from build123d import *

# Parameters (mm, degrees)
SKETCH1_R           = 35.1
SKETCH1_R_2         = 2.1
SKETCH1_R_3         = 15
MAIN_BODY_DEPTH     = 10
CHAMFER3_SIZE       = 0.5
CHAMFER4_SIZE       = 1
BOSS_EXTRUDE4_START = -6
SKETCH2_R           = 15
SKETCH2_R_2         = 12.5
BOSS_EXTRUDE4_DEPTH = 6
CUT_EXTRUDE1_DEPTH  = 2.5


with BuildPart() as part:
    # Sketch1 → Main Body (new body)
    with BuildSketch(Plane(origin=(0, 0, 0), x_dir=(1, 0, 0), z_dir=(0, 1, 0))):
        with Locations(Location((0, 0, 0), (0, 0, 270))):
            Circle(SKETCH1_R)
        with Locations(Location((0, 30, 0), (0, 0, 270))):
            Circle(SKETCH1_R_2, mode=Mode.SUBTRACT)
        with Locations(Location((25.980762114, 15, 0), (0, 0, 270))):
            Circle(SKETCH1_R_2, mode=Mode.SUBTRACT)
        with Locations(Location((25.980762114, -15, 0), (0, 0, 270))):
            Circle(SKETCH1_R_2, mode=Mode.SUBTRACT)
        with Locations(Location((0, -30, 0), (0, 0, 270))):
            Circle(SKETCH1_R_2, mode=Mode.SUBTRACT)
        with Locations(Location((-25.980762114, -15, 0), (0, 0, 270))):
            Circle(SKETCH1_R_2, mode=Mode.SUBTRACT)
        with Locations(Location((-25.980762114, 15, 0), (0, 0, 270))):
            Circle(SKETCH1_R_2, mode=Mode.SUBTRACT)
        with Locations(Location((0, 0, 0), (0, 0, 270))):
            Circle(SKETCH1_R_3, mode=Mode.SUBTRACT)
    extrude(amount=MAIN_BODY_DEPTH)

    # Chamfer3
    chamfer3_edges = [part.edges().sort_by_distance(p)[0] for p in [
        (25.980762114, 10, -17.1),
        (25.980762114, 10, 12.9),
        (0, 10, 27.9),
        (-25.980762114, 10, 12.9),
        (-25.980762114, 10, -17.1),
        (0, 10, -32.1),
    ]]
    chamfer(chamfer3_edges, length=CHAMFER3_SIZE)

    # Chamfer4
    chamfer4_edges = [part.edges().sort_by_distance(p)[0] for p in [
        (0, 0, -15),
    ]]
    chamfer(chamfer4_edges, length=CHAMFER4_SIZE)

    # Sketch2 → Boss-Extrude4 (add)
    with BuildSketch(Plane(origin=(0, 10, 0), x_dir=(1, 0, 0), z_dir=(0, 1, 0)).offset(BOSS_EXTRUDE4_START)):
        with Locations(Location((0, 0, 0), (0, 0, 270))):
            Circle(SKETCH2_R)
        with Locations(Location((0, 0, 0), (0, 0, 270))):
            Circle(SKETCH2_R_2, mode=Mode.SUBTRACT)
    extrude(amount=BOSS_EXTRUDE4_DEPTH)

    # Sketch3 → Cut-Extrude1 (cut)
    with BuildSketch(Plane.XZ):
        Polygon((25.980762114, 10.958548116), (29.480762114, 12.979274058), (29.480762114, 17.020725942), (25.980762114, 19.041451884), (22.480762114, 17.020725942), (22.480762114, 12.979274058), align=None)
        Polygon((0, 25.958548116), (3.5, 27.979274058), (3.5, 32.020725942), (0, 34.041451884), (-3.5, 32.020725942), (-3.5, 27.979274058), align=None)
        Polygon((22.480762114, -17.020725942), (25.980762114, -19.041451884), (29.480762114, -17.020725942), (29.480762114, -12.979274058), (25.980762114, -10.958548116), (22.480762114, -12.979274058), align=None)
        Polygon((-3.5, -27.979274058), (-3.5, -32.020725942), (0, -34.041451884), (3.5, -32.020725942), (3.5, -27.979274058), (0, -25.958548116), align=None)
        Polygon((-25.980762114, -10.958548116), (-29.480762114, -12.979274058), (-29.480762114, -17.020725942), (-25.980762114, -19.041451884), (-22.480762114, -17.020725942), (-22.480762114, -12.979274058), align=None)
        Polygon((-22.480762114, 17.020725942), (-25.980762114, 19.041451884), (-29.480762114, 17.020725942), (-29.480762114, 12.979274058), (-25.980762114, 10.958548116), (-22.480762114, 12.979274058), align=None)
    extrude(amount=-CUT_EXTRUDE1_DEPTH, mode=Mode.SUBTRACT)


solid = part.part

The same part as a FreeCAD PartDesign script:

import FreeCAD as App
import Part
import Sketcher
from FreeCAD import Vector
Q = App.Units.Quantity


def edges_at(feature, points):
    """Names of the edges that pass closest to the given points."""
    edges = feature.Shape.Edges
    near = lambda p: min(range(len(edges)), key=lambda i: edges[i].distToShape(Part.Vertex(*p))[0])
    return sorted({f"Edge{near(p) + 1}" for p in points})

doc = App.newDocument("Part")
body = doc.addObject("PartDesign::Body", "Body")

# Sketch on XZ plane
sketch1 = body.newObject("Sketcher::SketchObject", "Sketch")
sketch1.AttachmentSupport = (doc.getObject("XZ_Plane"), [""])
sketch1.MapMode = "FlatFace"
sketch1.addGeometry([
    Part.Circle(Vector(0, 0, 0), Vector(0, 0, 1), 35.1),  # 0
    Part.Circle(Vector(-25.980762, -15, 0), Vector(0, 0, 1), 2.1),  # 1
    Part.Circle(Vector(0, -30, 0), Vector(0, 0, 1), 2.1),  # 2
    Part.Circle(Vector(-25.980762, 15, 0), Vector(0, 0, 1), 2.1),  # 3
    Part.Circle(Vector(25.980762, -15, 0), Vector(0, 0, 1), 2.1),  # 4
    Part.Circle(Vector(0, 0, 0), Vector(0, 0, 1), 15),  # 5
    Part.Circle(Vector(0, 30, 0), Vector(0, 0, 1), 2.1),  # 6
    Part.Circle(Vector(25.980762, 15, 0), Vector(0, 0, 1), 2.1),  # 7
], False)
sketch1.addConstraint([
    Sketcher.Constraint("Coincident", 0, 3, -1, 1),
    Sketcher.Constraint("Coincident", 5, 3, -1, 1),
    Sketcher.Constraint("Equal", 1, 2),
    Sketcher.Constraint("Equal", 2, 3),
    Sketcher.Constraint("Equal", 3, 4),
    Sketcher.Constraint("Equal", 4, 6),
    Sketcher.Constraint("Equal", 6, 7),
    Sketcher.Constraint("Symmetric", 3, 3, 4, 3, -1, 1),
    Sketcher.Constraint("Symmetric", 2, 3, 6, 3, -1, 1),
    Sketcher.Constraint("Symmetric", 1, 3, 7, 3, -1, 1),
    Sketcher.Constraint("Symmetric", 1, 3, 4, 3, -2),
    Sketcher.Constraint("PointOnObject", 2, 3, -2),
    Sketcher.Constraint("Diameter", 5, 30.0),
    Sketcher.Constraint("Diameter", 0, 70.2),
    Sketcher.Constraint("Diameter", 1, 4.2),
    Sketcher.Constraint("DistanceY", 1, 3, -1, 1, 15.0),
    Sketcher.Constraint("DistanceY", 2, 3, -1, 1, 30.0),
    Sketcher.Constraint("DistanceX", 1, 3, -1, 1, 25.980762),
])
pad1 = body.newObject("PartDesign::Pad", "Pad")
pad1.Profile = sketch1
pad1.Length = 10
pad1.Reversed = True
doc.recompute()

chamfer = body.newObject("PartDesign::Chamfer", "Chamfer")
chamfer.Base = (pad1, edges_at(pad1, [
    (25.981, 10, -17.1),
    (25.981, 10, 12.9),
    (0, 10, 27.9),
    (-25.981, 10, 12.9),
    (-25.981, 10, -17.1),
    (0, 10, -32.1),
]))
chamfer.Size = 0.5
doc.recompute()

chamfer2 = body.newObject("PartDesign::Chamfer", "Chamfer001")
chamfer2.Base = (chamfer, edges_at(chamfer, [(0, 0, -15)]))
chamfer2.Size = 1

# Sketch on XZ plane
sketch2 = body.newObject("Sketcher::SketchObject", "Sketch001")
sketch2.AttachmentSupport = (doc.getObject("XZ_Plane"), [""])
sketch2.MapMode = "FlatFace"
sketch2.AttachmentOffset = App.Placement(Vector(0, 0, -4), App.Rotation())
sketch2.addGeometry([
    Part.Circle(Vector(0, 0, 0), Vector(0, 0, 1), 15),
    Part.Circle(Vector(0, 0, 0), Vector(0, 0, 1), 12.5),
], False)
sketch2.addConstraint([
    Sketcher.Constraint("Coincident", 0, 3, -1, 1),
    Sketcher.Constraint("Coincident", 1, 3, -1, 1),
    Sketcher.Constraint("Diameter", 0, 30.0),
    Sketcher.Constraint("Diameter", 1, 25.0),
])
pad2 = body.newObject("PartDesign::Pad", "Pad001")
pad2.Profile = sketch2
pad2.Length = 6
pad2.Reversed = True

# Sketch on XZ plane
sketch3 = body.newObject("Sketcher::SketchObject", "Sketch002")
sketch3.AttachmentSupport = (doc.getObject("XZ_Plane"), [""])
sketch3.MapMode = "FlatFace"
sketch3.addGeometry([
    Part.LineSegment(Vector(25.980762, 10.958548, 0), Vector(29.480762, 12.979274, 0)),  # 0
    Part.LineSegment(Vector(29.480762, 12.979274, 0), Vector(29.480762, 17.020726, 0)),  # 1
    Part.LineSegment(Vector(29.480762, 17.020726, 0), Vector(25.980762, 19.041452, 0)),  # 2
    Part.LineSegment(Vector(25.980762, 19.041452, 0), Vector(22.480762, 17.020726, 0)),  # 3
    Part.LineSegment(Vector(22.480762, 17.020726, 0), Vector(22.480762, 12.979274, 0)),  # 4
    Part.LineSegment(Vector(22.480762, 12.979274, 0), Vector(25.980762, 10.958548, 0)),  # 5
    Part.LineSegment(Vector(0, 25.958548, 0), Vector(3.5, 27.979274, 0)),  # 6
    Part.LineSegment(Vector(3.5, 27.979274, 0), Vector(3.5, 32.020726, 0)),  # 7
    Part.LineSegment(Vector(3.5, 32.020726, 0), Vector(0, 34.041452, 0)),  # 8
    Part.LineSegment(Vector(0, 34.041452, 0), Vector(-3.5, 32.020726, 0)),  # 9
    Part.LineSegment(Vector(-3.5, 32.020726, 0), Vector(-3.5, 27.979274, 0)),  # 10
    Part.LineSegment(Vector(-3.5, 27.979274, 0), Vector(0, 25.958548, 0)),  # 11
    Part.LineSegment(Vector(22.480762, -17.020726, 0), Vector(25.980762, -19.041452, 0)),  # 12
    Part.LineSegment(Vector(25.980762, -19.041452, 0), Vector(29.480762, -17.020726, 0)),  # 13
    Part.LineSegment(Vector(29.480762, -17.020726, 0), Vector(29.480762, -12.979274, 0)),  # 14
    Part.LineSegment(Vector(29.480762, -12.979274, 0), Vector(25.980762, -10.958548, 0)),  # 15
    Part.LineSegment(Vector(25.980762, -10.958548, 0), Vector(22.480762, -12.979274, 0)),  # 16
    Part.LineSegment(Vector(22.480762, -12.979274, 0), Vector(22.480762, -17.020726, 0)),  # 17
    Part.LineSegment(Vector(-3.5, -27.979274, 0), Vector(-3.5, -32.020726, 0)),  # 18
    Part.LineSegment(Vector(-3.5, -32.020726, 0), Vector(0, -34.041452, 0)),  # 19
    Part.LineSegment(Vector(0, -34.041452, 0), Vector(3.5, -32.020726, 0)),  # 20
    Part.LineSegment(Vector(3.5, -32.020726, 0), Vector(3.5, -27.979274, 0)),  # 21
    Part.LineSegment(Vector(3.5, -27.979274, 0), Vector(0, -25.958548, 0)),  # 22
    Part.LineSegment(Vector(0, -25.958548, 0), Vector(-3.5, -27.979274, 0)),  # 23
    Part.LineSegment(Vector(-25.980762, -10.958548, 0), Vector(-29.480762, -12.979274, 0)),  # 24
    Part.LineSegment(Vector(-29.480762, -12.979274, 0), Vector(-29.480762, -17.020726, 0)),  # 25
    Part.LineSegment(Vector(-29.480762, -17.020726, 0), Vector(-25.980762, -19.041452, 0)),  # 26
    Part.LineSegment(Vector(-25.980762, -19.041452, 0), Vector(-22.480762, -17.020726, 0)),  # 27
    Part.LineSegment(Vector(-22.480762, -17.020726, 0), Vector(-22.480762, -12.979274, 0)),  # 28
    Part.LineSegment(Vector(-22.480762, -12.979274, 0), Vector(-25.980762, -10.958548, 0)),  # 29
    Part.LineSegment(Vector(-22.480762, 17.020726, 0), Vector(-25.980762, 19.041452, 0)),  # 30
    Part.LineSegment(Vector(-25.980762, 19.041452, 0), Vector(-29.480762, 17.020726, 0)),  # 31
    Part.LineSegment(Vector(-29.480762, 17.020726, 0), Vector(-29.480762, 12.979274, 0)),  # 32
    Part.LineSegment(Vector(-29.480762, 12.979274, 0), Vector(-25.980762, 10.958548, 0)),  # 33
    Part.LineSegment(Vector(-25.980762, 10.958548, 0), Vector(-22.480762, 12.979274, 0)),  # 34
    Part.LineSegment(Vector(-22.480762, 12.979274, 0), Vector(-22.480762, 17.020726, 0)),  # 35
], False)
sketch3.addConstraint([
    Sketcher.Constraint("Coincident", 0, 2, 1, 1),
    Sketcher.Constraint("Coincident", 1, 2, 2, 1),
    Sketcher.Constraint("Coincident", 2, 2, 3, 1),
    Sketcher.Constraint("Coincident", 3, 2, 4, 1),
    Sketcher.Constraint("Coincident", 4, 2, 5, 1),
    Sketcher.Constraint("Coincident", 5, 2, 0, 1),
    Sketcher.Constraint("Coincident", 6, 2, 7, 1),
    Sketcher.Constraint("Coincident", 7, 2, 8, 1),
    Sketcher.Constraint("Coincident", 8, 2, 9, 1),
    Sketcher.Constraint("Coincident", 9, 2, 10, 1),
    Sketcher.Constraint("Coincident", 10, 2, 11, 1),
    Sketcher.Constraint("Coincident", 11, 2, 6, 1),
    Sketcher.Constraint("Coincident", 12, 2, 13, 1),
    Sketcher.Constraint("Coincident", 13, 2, 14, 1),
    Sketcher.Constraint("Coincident", 14, 2, 15, 1),
    Sketcher.Constraint("Coincident", 15, 2, 16, 1),
    Sketcher.Constraint("Coincident", 16, 2, 17, 1),
    Sketcher.Constraint("Coincident", 17, 2, 12, 1),
    Sketcher.Constraint("Coincident", 18, 2, 19, 1),
    Sketcher.Constraint("Coincident", 19, 2, 20, 1),
    Sketcher.Constraint("Coincident", 20, 2, 21, 1),
    Sketcher.Constraint("Coincident", 21, 2, 22, 1),
    Sketcher.Constraint("Coincident", 22, 2, 23, 1),
    Sketcher.Constraint("Coincident", 23, 2, 18, 1),
    Sketcher.Constraint("Coincident", 24, 2, 25, 1),
    Sketcher.Constraint("Coincident", 25, 2, 26, 1),
    Sketcher.Constraint("Coincident", 26, 2, 27, 1),
    Sketcher.Constraint("Coincident", 27, 2, 28, 1),
    Sketcher.Constraint("Coincident", 28, 2, 29, 1),
    Sketcher.Constraint("Coincident", 29, 2, 24, 1),
    Sketcher.Constraint("Coincident", 30, 2, 31, 1),
    Sketcher.Constraint("Coincident", 31, 2, 32, 1),
    Sketcher.Constraint("Coincident", 32, 2, 33, 1),
    Sketcher.Constraint("Coincident", 33, 2, 34, 1),
    Sketcher.Constraint("Coincident", 34, 2, 35, 1),
    Sketcher.Constraint("Coincident", 35, 2, 30, 1),
    Sketcher.Constraint("Vertical", 1),
    Sketcher.Constraint("Vertical", 4),
    Sketcher.Constraint("Vertical", 7),
    Sketcher.Constraint("Vertical", 10),
    Sketcher.Constraint("Vertical", 14),
    Sketcher.Constraint("Vertical", 17),
    Sketcher.Constraint("Vertical", 18),
    Sketcher.Constraint("Vertical", 21),
    Sketcher.Constraint("Vertical", 25),
    Sketcher.Constraint("Vertical", 28),
    Sketcher.Constraint("Vertical", 32),
    Sketcher.Constraint("Vertical", 35),
    Sketcher.Constraint("Symmetric", 7, 2, 18, 2, -1, 1),
    Sketcher.Constraint("Symmetric", 8, 2, 19, 2, -1, 1),
    Sketcher.Constraint("Symmetric", 9, 2, 20, 2, -1, 1),
    Sketcher.Constraint("Symmetric", 11, 2, 22, 2, -1, 1),
    Sketcher.Constraint("Symmetric", 0, 2, 24, 2, -1, 1),
    Sketcher.Constraint("Symmetric", 2, 2, 26, 2, -1, 1),
    Sketcher.Constraint("Symmetric", 3, 2, 27, 2, -1, 1),
    Sketcher.Constraint("Symmetric", 5, 2, 29, 2, -1, 1),
    Sketcher.Constraint("Symmetric", 12, 2, 30, 2, -1, 1),
    Sketcher.Constraint("Symmetric", 13, 2, 31, 2, -1, 1),
    Sketcher.Constraint("Symmetric", 15, 2, 33, 2, -1, 1),
    Sketcher.Constraint("Symmetric", 16, 2, 34, 2, -1, 1),
    Sketcher.Constraint("Symmetric", 7, 2, 9, 2, -2),
    Sketcher.Constraint("Symmetric", 14, 2, 24, 2, -2),
    Sketcher.Constraint("Symmetric", 12, 2, 26, 2, -2),
    Sketcher.Constraint("Symmetric", 17, 2, 27, 2, -2),
    Sketcher.Constraint("Symmetric", 15, 2, 29, 2, -2),
    Sketcher.Constraint("PointOnObject", 8, 2, -2),
    Sketcher.Constraint("PointOnObject", 11, 2, -2),
    Sketcher.Constraint("Parallel", 0, 3),
    Sketcher.Constraint("Parallel", 2, 5),
    Sketcher.Constraint("Parallel", 3, 6),
    Sketcher.Constraint("Parallel", 5, 8),
    Sketcher.Constraint("Parallel", 6, 9),
    Sketcher.Constraint("Parallel", 8, 11),
    Sketcher.Constraint("Parallel", 9, 13),
    Sketcher.Constraint("Parallel", 13, 16),
    Sketcher.Constraint("Parallel", 19, 22),
    Sketcher.Constraint("Parallel", 20, 23),
    Sketcher.Constraint("Parallel", 22, 26),
    Sketcher.Constraint("Parallel", 26, 29),
    Sketcher.Constraint("Parallel", 29, 30),
    Sketcher.Constraint("Parallel", 30, 33),
    Sketcher.Constraint("Horizontal", 1, 2, 3, 2),
    Sketcher.Constraint("Horizontal", 0, 2, 4, 2),
    Sketcher.Constraint("Equal", 4, 7),
    Sketcher.Constraint("Equal", 5, 6),
    Sketcher.Constraint("Angle", 0, Q("30 deg")),
    Sketcher.Constraint("DistanceX", 3, 2, 1, 2, 7.0),
    Sketcher.Constraint("DistanceY", 4, 2, 6, 2, 15.0),
    Sketcher.Constraint("DistanceY", 12, 2, 5, 2, 30.0),
    Sketcher.Constraint("DistanceY", 1, 1, 1, 2, 4.041452),
    Sketcher.Constraint("DistanceX", -1, 1, 0, 2, 29.480762),
])
pocket1 = body.newObject("PartDesign::Pocket", "Pocket")
pocket1.Profile = sketch3
pocket1.Length = 2.5

doc.recompute()
